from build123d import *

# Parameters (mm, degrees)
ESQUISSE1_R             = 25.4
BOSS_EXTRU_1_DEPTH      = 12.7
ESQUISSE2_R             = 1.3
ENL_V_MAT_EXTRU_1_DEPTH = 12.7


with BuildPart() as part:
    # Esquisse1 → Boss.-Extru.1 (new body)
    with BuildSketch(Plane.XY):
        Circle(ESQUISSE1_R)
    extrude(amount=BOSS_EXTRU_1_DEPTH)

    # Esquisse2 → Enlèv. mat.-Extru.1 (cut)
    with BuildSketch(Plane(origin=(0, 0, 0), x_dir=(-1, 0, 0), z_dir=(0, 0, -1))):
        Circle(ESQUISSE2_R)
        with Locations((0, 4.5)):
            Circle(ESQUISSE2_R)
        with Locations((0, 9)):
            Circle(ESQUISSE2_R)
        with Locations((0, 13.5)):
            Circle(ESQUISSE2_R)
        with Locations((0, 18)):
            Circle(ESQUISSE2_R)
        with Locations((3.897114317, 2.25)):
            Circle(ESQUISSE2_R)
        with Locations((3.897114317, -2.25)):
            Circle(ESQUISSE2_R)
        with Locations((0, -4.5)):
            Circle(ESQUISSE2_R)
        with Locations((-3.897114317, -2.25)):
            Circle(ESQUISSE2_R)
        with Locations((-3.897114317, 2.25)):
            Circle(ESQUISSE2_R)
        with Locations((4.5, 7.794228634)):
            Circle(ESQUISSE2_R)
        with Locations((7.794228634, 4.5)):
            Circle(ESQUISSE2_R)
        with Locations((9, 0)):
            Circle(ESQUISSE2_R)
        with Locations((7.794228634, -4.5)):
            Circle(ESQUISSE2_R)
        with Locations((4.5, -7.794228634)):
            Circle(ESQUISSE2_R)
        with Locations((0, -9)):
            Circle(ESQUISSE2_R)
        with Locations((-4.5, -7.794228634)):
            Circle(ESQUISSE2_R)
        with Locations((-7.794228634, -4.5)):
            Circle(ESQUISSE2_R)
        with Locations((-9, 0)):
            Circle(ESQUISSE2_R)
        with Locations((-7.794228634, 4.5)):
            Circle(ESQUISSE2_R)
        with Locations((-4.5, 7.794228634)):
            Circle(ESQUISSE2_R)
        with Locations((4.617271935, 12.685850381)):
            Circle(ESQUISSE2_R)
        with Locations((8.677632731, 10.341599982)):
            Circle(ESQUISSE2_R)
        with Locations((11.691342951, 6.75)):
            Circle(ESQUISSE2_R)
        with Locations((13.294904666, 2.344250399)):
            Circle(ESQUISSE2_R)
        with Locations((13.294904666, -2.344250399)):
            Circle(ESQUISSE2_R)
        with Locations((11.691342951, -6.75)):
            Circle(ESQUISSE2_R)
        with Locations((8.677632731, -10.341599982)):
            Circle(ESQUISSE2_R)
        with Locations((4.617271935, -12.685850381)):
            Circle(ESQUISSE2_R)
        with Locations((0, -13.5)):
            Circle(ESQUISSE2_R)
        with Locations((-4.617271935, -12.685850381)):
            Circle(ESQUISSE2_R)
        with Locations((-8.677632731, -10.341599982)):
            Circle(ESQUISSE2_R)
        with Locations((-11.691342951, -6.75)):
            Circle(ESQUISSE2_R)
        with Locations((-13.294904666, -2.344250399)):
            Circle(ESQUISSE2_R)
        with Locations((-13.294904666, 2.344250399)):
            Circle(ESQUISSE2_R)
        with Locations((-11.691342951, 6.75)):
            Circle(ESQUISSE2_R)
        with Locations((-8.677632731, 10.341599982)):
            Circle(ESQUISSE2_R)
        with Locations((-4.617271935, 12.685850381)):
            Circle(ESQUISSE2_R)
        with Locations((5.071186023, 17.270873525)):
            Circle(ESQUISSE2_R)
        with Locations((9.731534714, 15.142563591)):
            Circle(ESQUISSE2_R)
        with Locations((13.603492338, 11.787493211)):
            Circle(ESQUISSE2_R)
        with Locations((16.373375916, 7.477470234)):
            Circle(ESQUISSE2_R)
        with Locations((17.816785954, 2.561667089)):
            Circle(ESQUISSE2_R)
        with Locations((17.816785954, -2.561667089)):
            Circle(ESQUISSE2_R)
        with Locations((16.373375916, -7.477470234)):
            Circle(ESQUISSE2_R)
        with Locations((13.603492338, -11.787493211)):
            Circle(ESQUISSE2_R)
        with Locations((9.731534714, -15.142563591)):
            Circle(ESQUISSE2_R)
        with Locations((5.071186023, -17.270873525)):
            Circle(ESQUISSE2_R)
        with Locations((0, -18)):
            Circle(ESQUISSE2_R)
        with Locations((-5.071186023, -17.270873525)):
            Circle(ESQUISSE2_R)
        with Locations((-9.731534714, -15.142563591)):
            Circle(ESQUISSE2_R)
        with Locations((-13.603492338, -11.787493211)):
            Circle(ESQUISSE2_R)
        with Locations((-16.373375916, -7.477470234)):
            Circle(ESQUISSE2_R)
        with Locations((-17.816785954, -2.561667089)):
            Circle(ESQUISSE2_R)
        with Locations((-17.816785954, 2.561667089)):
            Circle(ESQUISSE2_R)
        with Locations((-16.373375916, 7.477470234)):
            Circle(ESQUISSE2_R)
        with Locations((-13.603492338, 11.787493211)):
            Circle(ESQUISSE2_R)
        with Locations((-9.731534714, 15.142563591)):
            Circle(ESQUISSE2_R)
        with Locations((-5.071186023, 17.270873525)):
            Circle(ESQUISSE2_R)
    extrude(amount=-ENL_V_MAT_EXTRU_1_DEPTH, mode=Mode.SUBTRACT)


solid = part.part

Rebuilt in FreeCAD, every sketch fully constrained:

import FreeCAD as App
import Part
import Sketcher
Q = App.Units.Quantity

doc = App.newDocument("Part")
body = doc.addObject("PartDesign::Body", "Body")

# Sketch on XY plane
sketch1 = body.newObject("Sketcher::SketchObject", "Sketch")
sketch1.AttachmentSupport = (doc.getObject("XY_Plane"), [""])
sketch1.MapMode = "FlatFace"
sketch1.addGeometry(Part.Circle(App.Vector(0, 0, 0), App.Vector(0, 0, 1), 25), False)
sketch1.addConstraint([
    Sketcher.Constraint("Coincident", 0, 3, -1, 1),
    Sketcher.Constraint("Diameter", 0, Q("2 in")),
])
pad1 = body.newObject("PartDesign::Pad", "Pad")
pad1.Profile = sketch1
pad1.Length = Q("0.5 in")

# Sketch on XY plane
sketch2 = body.newObject("Sketcher::SketchObject", "Sketch001")
sketch2.AttachmentSupport = (doc.getObject("XY_Plane"), [""])
sketch2.MapMode = "FlatFace"
sketch2.addGeometry([
    Part.Circle(App.Vector(0, 0, 0), App.Vector(0, 0, 1), 1.3),  # 0
    Part.Circle(App.Vector(0, 4.5, 0), App.Vector(0, 0, 1), 1.3),  # 1
    Part.Circle(App.Vector(0, 9, 0), App.Vector(0, 0, 1), 1.3),  # 2
    Part.Circle(App.Vector(0, 13.5, 0), App.Vector(0, 0, 1), 1.3),  # 3
    Part.Circle(App.Vector(0, 18, 0), App.Vector(0, 0, 1), 1.3),  # 4
    Part.Circle(App.Vector(-3.9, 2.2, 0), App.Vector(0, 0, 1), 1.3),  # 5
    Part.Circle(App.Vector(-3.9, -2.2, 0), App.Vector(0, 0, 1), 1.3),  # 6
    Part.Circle(App.Vector(0, -4.5, 0), App.Vector(0, 0, 1), 1.3),  # 7
    Part.Circle(App.Vector(3.9, -2.2, 0), App.Vector(0, 0, 1), 1.3),  # 8
    Part.Circle(App.Vector(3.9, 2.2, 0), App.Vector(0, 0, 1), 1.3),  # 9
    Part.Circle(App.Vector(-4.5, 7.8, 0), App.Vector(0, 0, 1), 1.3),  # 10
    Part.Circle(App.Vector(-7.8, 4.5, 0), App.Vector(0, 0, 1), 1.3),  # 11
    Part.Circle(App.Vector(-9, 0, 0), App.Vector(0, 0, 1), 1.3),  # 12
    Part.Circle(App.Vector(-7.8, -4.5, 0), App.Vector(0, 0, 1), 1.3),  # 13
    Part.Circle(App.Vector(-4.5, -7.8, 0), App.Vector(0, 0, 1), 1.3),  # 14
    Part.Circle(App.Vector(0, -9, 0), App.Vector(0, 0, 1), 1.3),  # 15
    Part.Circle(App.Vector(4.5, -7.8, 0), App.Vector(0, 0, 1), 1.3),  # 16
    Part.Circle(App.Vector(7.8, -4.5, 0), App.Vector(0, 0, 1), 1.3),  # 17
    Part.Circle(App.Vector(9, 0, 0), App.Vector(0, 0, 1), 1.3),  # 18
    Part.Circle(App.Vector(7.8, 4.5, 0), App.Vector(0, 0, 1), 1.3),  # 19
    Part.Circle(App.Vector(4.5, 7.8, 0), App.Vector(0, 0, 1), 1.3),  # 20
    Part.Circle(App.Vector(-4.6, 12.7, 0), App.Vector(0, 0, 1), 1.3),  # 21
    Part.Circle(App.Vector(-8.7, 10.3, 0), App.Vector(0, 0, 1), 1.3),  # 22
    Part.Circle(App.Vector(-11.7, 6.8, 0), App.Vector(0, 0, 1), 1.3),  # 23
    Part.Circle(App.Vector(-13.3, 2.3, 0), App.Vector(0, 0, 1), 1.3),  # 24
    Part.Circle(App.Vector(-13.3, -2.3, 0), App.Vector(0, 0, 1), 1.3),  # 25
    Part.Circle(App.Vector(-11.7, -6.8, 0), App.Vector(0, 0, 1), 1.3),  # 26
    Part.Circle(App.Vector(-8.7, -10.3, 0), App.Vector(0, 0, 1), 1.3),  # 27
    Part.Circle(App.Vector(-4.6, -12.7, 0), App.Vector(0, 0, 1), 1.3),  # 28
    Part.Circle(App.Vector(0, -13.5, 0), App.Vector(0, 0, 1), 1.3),  # 29
    Part.Circle(App.Vector(4.6, -12.7, 0), App.Vector(0, 0, 1), 1.3),  # 30
    Part.Circle(App.Vector(8.7, -10.3, 0), App.Vector(0, 0, 1), 1.3),  # 31
    Part.Circle(App.Vector(11.7, -6.8, 0), App.Vector(0, 0, 1), 1.3),  # 32
    Part.Circle(App.Vector(13.3, -2.3, 0), App.Vector(0, 0, 1), 1.3),  # 33
    Part.Circle(App.Vector(13.3, 2.3, 0), App.Vector(0, 0, 1), 1.3),  # 34
    Part.Circle(App.Vector(11.7, 6.8, 0), App.Vector(0, 0, 1), 1.3),  # 35
    Part.Circle(App.Vector(8.7, 10.3, 0), App.Vector(0, 0, 1), 1.3),  # 36
    Part.Circle(App.Vector(4.6, 12.7, 0), App.Vector(0, 0, 1), 1.3),  # 37
    Part.Circle(App.Vector(-5.1, 17.3, 0), App.Vector(0, 0, 1), 1.3),  # 38
    Part.Circle(App.Vector(-9.7, 15.1, 0), App.Vector(0, 0, 1), 1.3),  # 39
    Part.Circle(App.Vector(-13.6, 11.8, 0), App.Vector(0, 0, 1), 1.3),  # 40
    Part.Circle(App.Vector(-16.4, 7.5, 0), App.Vector(0, 0, 1), 1.3),  # 41
    Part.Circle(App.Vector(-17.8, 2.6, 0), App.Vector(0, 0, 1), 1.3),  # 42
    Part.Circle(App.Vector(-17.8, -2.6, 0), App.Vector(0, 0, 1), 1.3),  # 43
    Part.Circle(App.Vector(-16.4, -7.5, 0), App.Vector(0, 0, 1), 1.3),  # 44
    Part.Circle(App.Vector(-13.6, -11.8, 0), App.Vector(0, 0, 1), 1.3),  # 45
    Part.Circle(App.Vector(-9.7, -15.1, 0), App.Vector(0, 0, 1), 1.3),  # 46
    Part.Circle(App.Vector(-5.1, -17.3, 0), App.Vector(0, 0, 1), 1.3),  # 47
    Part.Circle(App.Vector(0, -18, 0), App.Vector(0, 0, 1), 1.3),  # 48
    Part.Circle(App.Vector(5.1, -17.3, 0), App.Vector(0, 0, 1), 1.3),  # 49
    Part.Circle(App.Vector(9.7, -15.1, 0), App.Vector(0, 0, 1), 1.3),  # 50
    Part.Circle(App.Vector(13.6, -11.8, 0), App.Vector(0, 0, 1), 1.3),  # 51
    Part.Circle(App.Vector(16.4, -7.5, 0), App.Vector(0, 0, 1), 1.3),  # 52
    Part.Circle(App.Vector(17.8, -2.6, 0), App.Vector(0, 0, 1), 1.3),  # 53
    Part.Circle(App.Vector(17.8, 2.6, 0), App.Vector(0, 0, 1), 1.3),  # 54
    Part.Circle(App.Vector(16.4, 7.5, 0), App.Vector(0, 0, 1), 1.3),  # 55
    Part.Circle(App.Vector(13.6, 11.8, 0), App.Vector(0, 0, 1), 1.3),  # 56
    Part.Circle(App.Vector(9.7, 15.1, 0), App.Vector(0, 0, 1), 1.3),  # 57
    Part.Circle(App.Vector(5.1, 17.3, 0), App.Vector(0, 0, 1), 1.3),  # 58
], False)
sketch2.addConstraint([
    Sketcher.Constraint("Coincident", 0, 3, -1, 1),
    Sketcher.Constraint("Equal", 0, 1),
    Sketcher.Constraint("Equal", 1, 2),
    Sketcher.Constraint("Equal", 2, 3),
    Sketcher.Constraint("Equal", 3, 4),
    Sketcher.Constraint("Equal", 4, 5),
    Sketcher.Constraint("Equal", 5, 6),
    Sketcher.Constraint("Equal", 6, 7),
    Sketcher.Constraint("Equal", 7, 8),
    Sketcher.Constraint("Equal", 8, 9),
    Sketcher.Constraint("Equal", 9, 10),
    Sketcher.Constraint("Equal", 10, 11),
    Sketcher.Constraint("Equal", 11, 12),
    Sketcher.Constraint("Equal", 12, 13),
    Sketcher.Constraint("Equal", 13, 14),
    Sketcher.Constraint("Equal", 14, 15),
    Sketcher.Constraint("Equal", 15, 16),
    Sketcher.Constraint("Equal", 16, 17),
    Sketcher.Constraint("Equal", 17, 18),
    Sketcher.Constraint("Equal", 18, 19),
    Sketcher.Constraint("Equal", 19, 20),
    Sketcher.Constraint("Equal", 20, 21),
    Sketcher.Constraint("Equal", 21, 22),
    Sketcher.Constraint("Equal", 22, 23),
    Sketcher.Constraint("Equal", 23, 24),
    Sketcher.Constraint("Equal", 24, 25),
    Sketcher.Constraint("Equal", 25, 26),
    Sketcher.Constraint("Equal", 26, 27),
    Sketcher.Constraint("Equal", 27, 28),
    Sketcher.Constraint("Equal", 28, 29),
    Sketcher.Constraint("Equal", 29, 30),
    Sketcher.Constraint("Equal", 30, 31),
    Sketcher.Constraint("Equal", 31, 32),
    Sketcher.Constraint("Equal", 32, 33),
    Sketcher.Constraint("Equal", 33, 34),
    Sketcher.Constraint("Equal", 34, 35),
    Sketcher.Constraint("Equal", 35, 36),
    Sketcher.Constraint("Equal", 36, 37),
    Sketcher.Constraint("Equal", 37, 38),
    Sketcher.Constraint("Equal", 38, 39),
    Sketcher.Constraint("Equal", 39, 40),
    Sketcher.Constraint("Equal", 40, 41),
    Sketcher.Constraint("Equal", 41, 42),
    Sketcher.Constraint("Equal", 42, 43),
    Sketcher.Constraint("Equal", 43, 44),
    Sketcher.Constraint("Equal", 44, 45),
    Sketcher.Constraint("Equal", 45, 46),
    Sketcher.Constraint("Equal", 46, 47),
    Sketcher.Constraint("Equal", 47, 48),
    Sketcher.Constraint("Equal", 48, 49),
    Sketcher.Constraint("Equal", 49, 50),
    Sketcher.Constraint("Equal", 50, 51),
    Sketcher.Constraint("Equal", 51, 52),
    Sketcher.Constraint("Equal", 52, 53),
    Sketcher.Constraint("Equal", 53, 54),
    Sketcher.Constraint("Equal", 54, 55),
    Sketcher.Constraint("Equal", 55, 56),
    Sketcher.Constraint("Equal", 56, 57),
    Sketcher.Constraint("Equal", 57, 58),
    Sketcher.Constraint("Symmetric", 1, 3, 7, 3, -1, 1),
    Sketcher.Constraint("Symmetric", 5, 3, 8, 3, -1, 1),
    Sketcher.Constraint("Symmetric", 6, 3, 9, 3, -1, 1),
    Sketcher.Constraint("Symmetric", 2, 3, 15, 3, -1, 1),
    Sketcher.Constraint("Symmetric", 10, 3, 16, 3, -1, 1),
    Sketcher.Constraint("Symmetric", 11, 3, 17, 3, -1, 1),
    Sketcher.Constraint("Symmetric", 12, 3, 18, 3, -1, 1),
    Sketcher.Constraint("Symmetric", 13, 3, 19, 3, -1, 1),
    Sketcher.Constraint("Symmetric", 14, 3, 20, 3, -1, 1),
    Sketcher.Constraint("Symmetric", 3, 3, 29, 3, -1, 1),
    Sketcher.Constraint("Symmetric", 21, 3, 30, 3, -1, 1),
    Sketcher.Constraint("Symmetric", 22, 3, 31, 3, -1, 1),
    Sketcher.Constraint("Symmetric", 23, 3, 32, 3, -1, 1),
    Sketcher.Constraint("Symmetric", 24, 3, 33, 3, -1, 1),
    Sketcher.Constraint("Symmetric", 25, 3, 34, 3, -1, 1),
    Sketcher.Constraint("Symmetric", 26, 3, 35, 3, -1, 1),
    Sketcher.Constraint("Symmetric", 27, 3, 36, 3, -1, 1),
    Sketcher.Constraint("Symmetric", 28, 3, 37, 3, -1, 1),
    Sketcher.Constraint("Symmetric", 4, 3, 48, 3, -1, 1),
    Sketcher.Constraint("Symmetric", 38, 3, 49, 3, -1, 1),
    Sketcher.Constraint("Symmetric", 39, 3, 50, 3, -1, 1),
    Sketcher.Constraint("Symmetric", 40, 3, 51, 3, -1, 1),
    Sketcher.Constraint("Symmetric", 41, 3, 52, 3, -1, 1),
    Sketcher.Constraint("Symmetric", 42, 3, 53, 3, -1, 1),
    Sketcher.Constraint("Symmetric", 43, 3, 54, 3, -1, 1),
    Sketcher.Constraint("Symmetric", 44, 3, 55, 3, -1, 1),
    Sketcher.Constraint("Symmetric", 45, 3, 56, 3, -1, 1),
    Sketcher.Constraint("Symmetric", 46, 3, 57, 3, -1, 1),
    Sketcher.Constraint("Symmetric", 47, 3, 58, 3, -1, 1),
    Sketcher.Constraint("Symmetric", 6, 3, 8, 3, -2),
    Sketcher.Constraint("Symmetric", 14, 3, 16, 3, -2),
    Sketcher.Constraint("Symmetric", 13, 3, 17, 3, -2),
    Sketcher.Constraint("Symmetric", 28, 3, 30, 3, -2),
    Sketcher.Constraint("Symmetric", 27, 3, 31, 3, -2),
    Sketcher.Constraint("Symmetric", 26, 3, 32, 3, -2),
    Sketcher.Constraint("Symmetric", 25, 3, 33, 3, -2),
    Sketcher.Constraint("Symmetric", 47, 3, 49, 3, -2),
    Sketcher.Constraint("Symmetric", 46, 3, 50, 3, -2),
    Sketcher.Constraint("Symmetric", 45, 3, 51, 3, -2),
    Sketcher.Constraint("Symmetric", 44, 3, 52, 3, -2),
    Sketcher.Constraint("Symmetric", 43, 3, 53, 3, -2),
    Sketcher.Constraint("PointOnObject", 1, 3, -2),
    Sketcher.Constraint("PointOnObject", 2, 3, -2),
    Sketcher.Constraint("PointOnObject", 3, 3, -2),
    Sketcher.Constraint("PointOnObject", 4, 3, -2),
    Sketcher.Constraint("PointOnObject", 12, 3, -1),
    Sketcher.Constraint("Horizontal", 1, 3, 11, 3),
    Sketcher.Constraint("Diameter", 0, Q("2.6 mm")),
    Sketcher.Constraint("DistanceY", -1, 1, 1, 3, Q("4.5 mm")),
    Sketcher.Constraint("DistanceY", -1, 1, 2, 3, Q("9 mm")),
    Sketcher.Constraint("DistanceY", -1, 1, 3, 3, Q("13.5 mm")),
    Sketcher.Constraint("DistanceY", -1, 1, 4, 3, Q("18 mm")),
    Sketcher.Constraint("DistanceY", -1, 1, 5, 3, Q("2.25 mm")),
    Sketcher.Constraint("DistanceX", 10, 3, -1, 1, Q("4.5 mm")),
    Sketcher.Constraint("DistanceX", 12, 3, -1, 1, Q("9 mm")),
    Sketcher.Constraint("DistanceY", -1, 1, 22, 3, Q("10.3416 mm")),
    Sketcher.Constraint("DistanceY", -1, 1, 23, 3, Q("6.75 mm")),
    Sketcher.Constraint("DistanceY", 25, 3, 24, 3, Q("4.688501 mm")),
    Sketcher.Constraint("DistanceX", 39, 3, 22, 3, Q("1.053902 mm")),
    Sketcher.Constraint("DistanceY", -1, 1, 10, 3, Q("7.794229 mm")),
    Sketcher.Constraint("DistanceX", 11, 3, -1, 1, Q("7.794229 mm")),
    Sketcher.Constraint("DistanceX", 21, 3, -1, 1, Q("4.617272 mm")),
    Sketcher.Constraint("DistanceY", -1, 1, 21, 3, Q("12.68585 mm")),
    Sketcher.Constraint("DistanceY", -1, 1, 41, 3, Q("7.47747 mm")),
    Sketcher.Constraint("DistanceX", 6, 3, 8, 3, Q("7.794229 mm")),
    Sketcher.Constraint("DistanceX", 22, 3, 21, 3, Q("4.060361 mm")),
    Sketcher.Constraint("DistanceX", 23, 3, 22, 3, Q("3.01371 mm")),
    Sketcher.Constraint("DistanceX", 24, 3, 23, 3, Q("1.603562 mm")),
    Sketcher.Constraint("DistanceX", 39, 3, 38, 3, Q("4.660349 mm")),
    Sketcher.Constraint("DistanceY", 39, 3, 38, 3, Q("2.12831 mm")),
    Sketcher.Constraint("DistanceY", 40, 3, 39, 3, Q("3.35507 mm")),
    Sketcher.Constraint("DistanceX", 40, 3, 22, 3, Q("4.92586 mm")),
    Sketcher.Constraint("DistanceX", 41, 3, 24, 3, Q("3.078471 mm")),
    Sketcher.Constraint("DistanceX", 42, 3, 24, 3, Q("4.521881 mm")),
    Sketcher.Constraint("DistanceY", -1, 1, 38, 3, Q("17.270874 mm")),
    Sketcher.Constraint("DistanceY", -1, 1, 42, 3, Q("2.561667 mm")),
])
pocket1 = body.newObject("PartDesign::Pocket", "Pocket")
pocket1.Profile = sketch2
pocket1.Length = Q("0.5 in")
pocket1.Reversed = True

doc.recompute()
